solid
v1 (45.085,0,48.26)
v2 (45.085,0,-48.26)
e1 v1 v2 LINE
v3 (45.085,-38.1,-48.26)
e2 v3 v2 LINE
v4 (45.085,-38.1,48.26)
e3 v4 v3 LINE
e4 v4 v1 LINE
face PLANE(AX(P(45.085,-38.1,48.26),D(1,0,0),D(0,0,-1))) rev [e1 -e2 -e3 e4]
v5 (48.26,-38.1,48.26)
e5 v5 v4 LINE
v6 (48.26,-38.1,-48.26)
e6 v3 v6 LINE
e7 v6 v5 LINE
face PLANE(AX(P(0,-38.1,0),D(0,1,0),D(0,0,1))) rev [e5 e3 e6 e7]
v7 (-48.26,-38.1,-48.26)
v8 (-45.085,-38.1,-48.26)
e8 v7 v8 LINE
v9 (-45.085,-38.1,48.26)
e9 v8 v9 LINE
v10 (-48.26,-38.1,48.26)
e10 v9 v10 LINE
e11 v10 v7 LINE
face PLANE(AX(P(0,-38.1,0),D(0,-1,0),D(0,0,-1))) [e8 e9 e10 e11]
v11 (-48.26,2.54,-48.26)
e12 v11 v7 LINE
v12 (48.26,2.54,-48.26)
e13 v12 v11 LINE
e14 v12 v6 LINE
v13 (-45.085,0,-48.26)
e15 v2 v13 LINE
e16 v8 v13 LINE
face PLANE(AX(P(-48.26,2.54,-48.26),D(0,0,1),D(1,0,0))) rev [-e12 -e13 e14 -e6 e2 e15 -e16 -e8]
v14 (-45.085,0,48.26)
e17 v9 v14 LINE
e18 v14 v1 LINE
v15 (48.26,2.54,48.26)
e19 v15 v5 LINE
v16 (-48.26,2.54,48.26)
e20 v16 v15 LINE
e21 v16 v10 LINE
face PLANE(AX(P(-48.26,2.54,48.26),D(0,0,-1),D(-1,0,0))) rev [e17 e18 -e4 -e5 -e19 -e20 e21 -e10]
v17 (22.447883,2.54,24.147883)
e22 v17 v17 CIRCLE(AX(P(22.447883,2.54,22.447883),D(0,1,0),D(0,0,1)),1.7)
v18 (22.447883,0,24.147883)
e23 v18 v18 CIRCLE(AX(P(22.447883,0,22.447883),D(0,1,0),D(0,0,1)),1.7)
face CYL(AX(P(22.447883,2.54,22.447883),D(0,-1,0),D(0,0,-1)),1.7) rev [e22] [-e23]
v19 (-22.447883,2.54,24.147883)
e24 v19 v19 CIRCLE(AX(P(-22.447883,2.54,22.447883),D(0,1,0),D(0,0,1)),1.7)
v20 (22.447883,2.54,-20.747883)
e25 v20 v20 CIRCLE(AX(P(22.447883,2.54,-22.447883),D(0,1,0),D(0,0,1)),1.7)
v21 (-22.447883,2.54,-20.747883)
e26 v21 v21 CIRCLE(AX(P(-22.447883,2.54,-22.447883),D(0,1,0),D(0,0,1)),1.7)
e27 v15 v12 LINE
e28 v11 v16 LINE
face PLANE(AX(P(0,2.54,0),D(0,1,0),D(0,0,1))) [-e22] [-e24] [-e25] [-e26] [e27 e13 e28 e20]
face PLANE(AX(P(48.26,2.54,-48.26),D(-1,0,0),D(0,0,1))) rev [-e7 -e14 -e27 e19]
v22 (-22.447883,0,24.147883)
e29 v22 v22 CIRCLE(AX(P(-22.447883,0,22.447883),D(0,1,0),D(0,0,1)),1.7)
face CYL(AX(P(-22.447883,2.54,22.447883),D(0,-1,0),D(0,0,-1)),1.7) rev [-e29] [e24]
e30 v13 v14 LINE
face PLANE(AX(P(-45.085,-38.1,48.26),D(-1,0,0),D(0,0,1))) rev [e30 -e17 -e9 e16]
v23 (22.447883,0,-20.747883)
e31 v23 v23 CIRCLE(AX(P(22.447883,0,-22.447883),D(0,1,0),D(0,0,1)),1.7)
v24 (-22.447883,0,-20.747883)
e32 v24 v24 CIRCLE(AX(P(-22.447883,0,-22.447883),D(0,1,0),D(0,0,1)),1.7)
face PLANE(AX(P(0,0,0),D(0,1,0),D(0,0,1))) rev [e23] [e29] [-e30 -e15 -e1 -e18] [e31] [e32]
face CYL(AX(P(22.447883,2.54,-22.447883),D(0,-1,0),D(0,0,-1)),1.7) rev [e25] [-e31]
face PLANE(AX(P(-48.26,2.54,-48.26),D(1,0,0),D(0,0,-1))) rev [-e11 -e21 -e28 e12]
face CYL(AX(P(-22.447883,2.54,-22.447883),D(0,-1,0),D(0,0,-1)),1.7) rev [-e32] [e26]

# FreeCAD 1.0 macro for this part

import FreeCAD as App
import Part
import Sketcher
Q = App.Units.Quantity

doc = App.newDocument("Part")
params = doc.addObject("Spreadsheet::Sheet", "Params")
for row, (alias, value) in enumerate([
    ("sketch1_width", "3.8 in"),
    ("pad1_length", "0.1 in"),
    ("sketch2_height", "3.8 in"),
    ("sketch2_width", "0.125 in"),
    ("pad2_length", "1.5 in"),
], start=1):
    params.set(f"A{row}", alias)
    params.set(f"B{row}", "=" + value)
    params.setAlias(f"B{row}", alias)

body = doc.addObject("PartDesign::Body", "Body")

sketch1 = body.newObject("Sketcher::SketchObject", "Sketch")
sketch1.AttachmentSupport = (doc.getObject("XZ_Plane"), [""])
sketch1.MapMode = "FlatFace"
sketch1.addGeometry([
    Part.LineSegment(App.Vector(-48.26, -48.26, 0), App.Vector(-48.26, 48.26, 0)),
    Part.LineSegment(App.Vector(-48.26, 48.26, 0), App.Vector(48.26, 48.26, 0)),
    Part.LineSegment(App.Vector(48.26, 48.26, 0), App.Vector(48.26, -48.26, 0)),
    Part.LineSegment(App.Vector(48.26, -48.26, 0), App.Vector(-48.26, -48.26, 0)),
    Part.Circle(App.Vector(-22.447883, 22.447883, 0), App.Vector(0, 0, 1), 1.7),
    Part.Circle(App.Vector(22.447883, 22.447883, 0), App.Vector(0, 0, 1), 1.7),
    Part.Circle(App.Vector(-22.447883, -22.447883, 0), App.Vector(0, 0, 1), 1.7),
    Part.Circle(App.Vector(22.447883, -22.447883, 0), App.Vector(0, 0, 1), 1.7),
], False)
sketch1.addConstraint([
    Sketcher.Constraint("Coincident", 0, 2, 1, 1),
    Sketcher.Constraint("Coincident", 1, 2, 2, 1),
    Sketcher.Constraint("Coincident", 2, 2, 3, 1),
    Sketcher.Constraint("Coincident", 3, 2, 0, 1),
    Sketcher.Constraint("Vertical", 0),
    Sketcher.Constraint("Horizontal", 1),
    Sketcher.Constraint("Vertical", 2),
    Sketcher.Constraint("Horizontal", 3),
    Sketcher.Constraint("Equal", 4, 5),
    Sketcher.Constraint("Equal", 5, 6),
    Sketcher.Constraint("Equal", 6, 7),
    Sketcher.Constraint("Symmetric", 5, 3, 6, 3, -1, 1),
    Sketcher.Constraint("Symmetric", 4, 3, 7, 3, -1, 1),
    Sketcher.Constraint("Symmetric", 0, 2, 2, 2, -1, 1),
    Sketcher.Constraint("Symmetric", 4, 3, 5, 3, -2),
    Sketcher.Constraint("Equal", 3, 0),
    Sketcher.Constraint("DistanceX", 1, 1, 1, 2, Q("3.8 in")),
    Sketcher.Constraint("Diameter", 4, Q("3.4 mm")),
    Sketcher.Constraint("DistanceX", 4, 3, -1, 1, Q("22.447883 mm")),
    Sketcher.Constraint("DistanceY", -1, 1, 4, 3, Q("22.447883 mm")),
])
sketch1.setExpression("Constraints[16]", "Params.sketch1_width")
pad1 = body.newObject("PartDesign::Pad", "Pad")
pad1.Profile = sketch1
pad1.setExpression("Length", "Params.pad1_length")
pad1.Reversed = True

sketch2 = body.newObject("Sketcher::SketchObject", "Sketch001")
sketch2.AttachmentSupport = (doc.getObject("XZ_Plane"), [""])
sketch2.MapMode = "FlatFace"
sketch2.addGeometry([
    Part.LineSegment(App.Vector(-48.26, 48.26, 0), App.Vector(-48.26, -48.26, 0)),
    Part.LineSegment(App.Vector(-48.26, -48.26, 0), App.Vector(-45.085, -48.26, 0)),
    Part.LineSegment(App.Vector(-45.085, -48.26, 0), App.Vector(-45.085, 48.26, 0)),
    Part.LineSegment(App.Vector(-45.085, 48.26, 0), App.Vector(-48.26, 48.26, 0)),
    Part.LineSegment(App.Vector(45.085, 48.26, 0), App.Vector(45.085, -48.26, 0)),
    Part.LineSegment(App.Vector(45.085, -48.26, 0), App.Vector(48.26, -48.26, 0)),
    Part.LineSegment(App.Vector(48.26, -48.26, 0), App.Vector(48.26, 48.26, 0)),
    Part.LineSegment(App.Vector(48.26, 48.26, 0), App.Vector(45.085, 48.26, 0)),
], False)
sketch2.addConstraint([
    Sketcher.Constraint("Coincident", 0, 2, 1, 1),
    Sketcher.Constraint("Coincident", 1, 2, 2, 1),
    Sketcher.Constraint("Coincident", 2, 2, 3, 1),
    Sketcher.Constraint("Coincident", 3, 2, 0, 1),
    Sketcher.Constraint("Coincident", 4, 2, 5, 1),
    Sketcher.Constraint("Coincident", 5, 2, 6, 1),
    Sketcher.Constraint("Coincident", 6, 2, 7, 1),
    Sketcher.Constraint("Coincident", 7, 2, 4, 1),
    Sketcher.Constraint("Vertical", 0),
    Sketcher.Constraint("Horizontal", 1),
    Sketcher.Constraint("Vertical", 2),
    Sketcher.Constraint("Horizontal", 3),
    Sketcher.Constraint("Vertical", 4),
    Sketcher.Constraint("Horizontal", 5),
    Sketcher.Constraint("Vertical", 6),
    Sketcher.Constraint("Horizontal", 7),
    Sketcher.Constraint("Symmetric", 2, 2, 4, 2, -1, 1),
    Sketcher.Constraint("Symmetric", 0, 2, 6, 2, -1, 1),
    Sketcher.Constraint("Horizontal", 1, 2, 4, 2),
    Sketcher.Constraint("DistanceY", 0, 2, 0, 1, Q("3.8 in")),
    Sketcher.Constraint("DistanceX", 0, 2, -1, 1, Q("1.9 in")),
    Sketcher.Constraint("DistanceX", 1, 1, 1, 2, Q("0.125 in")),
])
sketch2.setExpression("Constraints[19]", "Params.sketch2_height")
sketch2.setExpression("Constraints[21]", "Params.sketch2_width")
pad2 = body.newObject("PartDesign::Pad", "Pad001")
pad2.Profile = sketch2
pad2.setExpression("Length", "Params.pad2_length")

doc.recompute()
